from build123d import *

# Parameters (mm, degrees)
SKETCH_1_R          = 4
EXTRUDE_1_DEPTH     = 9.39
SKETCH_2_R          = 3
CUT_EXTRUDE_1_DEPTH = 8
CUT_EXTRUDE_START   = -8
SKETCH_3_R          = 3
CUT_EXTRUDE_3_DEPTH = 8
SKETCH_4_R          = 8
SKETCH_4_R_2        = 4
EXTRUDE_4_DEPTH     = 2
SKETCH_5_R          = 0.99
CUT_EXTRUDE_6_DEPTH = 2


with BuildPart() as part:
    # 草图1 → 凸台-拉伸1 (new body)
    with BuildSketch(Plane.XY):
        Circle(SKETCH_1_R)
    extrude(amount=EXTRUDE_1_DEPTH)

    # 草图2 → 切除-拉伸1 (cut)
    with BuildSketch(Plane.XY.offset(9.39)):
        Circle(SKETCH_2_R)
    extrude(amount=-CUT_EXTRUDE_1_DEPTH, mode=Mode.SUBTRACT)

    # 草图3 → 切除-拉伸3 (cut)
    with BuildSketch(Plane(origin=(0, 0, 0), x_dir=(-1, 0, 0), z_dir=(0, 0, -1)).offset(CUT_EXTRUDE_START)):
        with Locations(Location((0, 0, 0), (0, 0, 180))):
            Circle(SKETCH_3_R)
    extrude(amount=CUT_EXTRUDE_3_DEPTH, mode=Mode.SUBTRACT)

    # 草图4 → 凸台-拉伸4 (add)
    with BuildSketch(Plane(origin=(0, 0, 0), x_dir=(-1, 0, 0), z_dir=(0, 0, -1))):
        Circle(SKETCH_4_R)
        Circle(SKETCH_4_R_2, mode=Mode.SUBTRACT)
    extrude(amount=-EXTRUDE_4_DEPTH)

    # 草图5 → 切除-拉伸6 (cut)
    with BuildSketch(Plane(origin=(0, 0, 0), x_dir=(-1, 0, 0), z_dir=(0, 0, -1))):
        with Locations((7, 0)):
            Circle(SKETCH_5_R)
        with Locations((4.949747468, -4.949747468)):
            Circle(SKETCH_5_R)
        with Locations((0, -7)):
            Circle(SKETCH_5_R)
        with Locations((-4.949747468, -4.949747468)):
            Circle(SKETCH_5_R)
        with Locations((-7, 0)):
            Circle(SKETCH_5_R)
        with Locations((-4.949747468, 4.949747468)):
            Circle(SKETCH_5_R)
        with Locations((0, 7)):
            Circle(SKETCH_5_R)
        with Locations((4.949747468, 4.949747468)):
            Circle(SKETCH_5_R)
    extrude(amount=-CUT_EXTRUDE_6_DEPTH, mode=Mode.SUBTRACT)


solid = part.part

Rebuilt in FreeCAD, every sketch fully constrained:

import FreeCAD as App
import Part
import Sketcher
from FreeCAD import Vector

doc = App.newDocument("Part")
body = doc.addObject("PartDesign::Body", "Body")

sketch1 = body.newObject("Sketcher::SketchObject", "Sketch")
sketch1.AttachmentSupport = (doc.getObject("XY_Plane"), [""])
sketch1.MapMode = "FlatFace"
sketch1.addGeometry(Part.Circle(Vector(0, 0, 0), Vector(0, 0, 1), 4), False)
sketch1.addConstraint([
    Sketcher.Constraint("Coincident", 0, 3, -1, 1),
    Sketcher.Constraint("Diameter", 0, 8.0),
])
pad1 = body.newObject("PartDesign::Pad", "Pad")
pad1.Profile = sketch1
pad1.Length = 9.39

sketch2 = body.newObject("Sketcher::SketchObject", "Sketch001")
sketch2.AttachmentSupport = (doc.getObject("XY_Plane"), [""])
sketch2.MapMode = "FlatFace"
sketch2.AttachmentOffset = App.Placement(Vector(0, 0, 9.39), App.Rotation())
sketch2.addGeometry(Part.Circle(Vector(0, 0, 0), Vector(0, 0, 1), 3), False)
sketch2.addConstraint([
    Sketcher.Constraint("Coincident", 0, 3, -1, 1),
    Sketcher.Constraint("Diameter", 0, 6.0),
])
pocket1 = body.newObject("PartDesign::Pocket", "Pocket")
pocket1.Profile = sketch2
pocket1.Length = 8

sketch3 = body.newObject("Sketcher::SketchObject", "Sketch002")
sketch3.AttachmentSupport = (doc.getObject("XY_Plane"), [""])
sketch3.MapMode = "FlatFace"
sketch3.AttachmentOffset = App.Placement(Vector(0, 0, 8), App.Rotation())
sketch3.addGeometry(Part.Circle(Vector(0, 0, 0), Vector(0, 0, 1), 3), False)
sketch3.addConstraint([
    Sketcher.Constraint("Coincident", 0, 3, -1, 1),
    Sketcher.Constraint("Diameter", 0, 6.0),
])
pocket2 = body.newObject("PartDesign::Pocket", "Pocket001")
pocket2.Profile = sketch3
pocket2.Length = 8

sketch4 = body.newObject("Sketcher::SketchObject", "Sketch003")
sketch4.AttachmentSupport = (doc.getObject("XY_Plane"), [""])
sketch4.MapMode = "FlatFace"
sketch4.addGeometry([
    Part.Circle(Vector(0, 0, 0), Vector(0, 0, 1), 8),
    Part.Circle(Vector(0, 0, 0), Vector(0, 0, 1), 4),
], False)
sketch4.addConstraint([
    Sketcher.Constraint("Coincident", 0, 3, -1, 1),
    Sketcher.Constraint("Coincident", 1, 3, -1, 1),
    Sketcher.Constraint("Diameter", 0, 16.0),
    Sketcher.Constraint("Diameter", 1, 8.0),
])
pad2 = body.newObject("PartDesign::Pad", "Pad001")
pad2.Profile = sketch4
pad2.Length = 2

sketch5 = body.newObject("Sketcher::SketchObject", "Sketch004")
sketch5.AttachmentSupport = (doc.getObject("XY_Plane"), [""])
sketch5.MapMode = "FlatFace"
sketch5.addGeometry([
    Part.Circle(Vector(-7, 0, 0), Vector(0, 0, 1), 1),
    Part.Circle(Vector(-4.9, -4.9, 0), Vector(0, 0, 1), 1),
    Part.Circle(Vector(0, -7, 0), Vector(0, 0, 1), 1),
    Part.Circle(Vector(4.9, -4.9, 0), Vector(0, 0, 1), 1),
    Part.Circle(Vector(7, 0, 0), Vector(0, 0, 1), 1),
    Part.Circle(Vector(4.9, 4.9, 0), Vector(0, 0, 1), 1),
    Part.Circle(Vector(0, 7, 0), Vector(0, 0, 1), 1),
    Part.Circle(Vector(-4.9, 4.9, 0), Vector(0, 0, 1), 1),
], False)
sketch5.addConstraint([
    Sketcher.Constraint("Equal", 0, 1),
    Sketcher.Constraint("Equal", 1, 2),
    Sketcher.Constraint("Equal", 2, 3),
    Sketcher.Constraint("Equal", 3, 4),
    Sketcher.Constraint("Equal", 4, 5),
    Sketcher.Constraint("Equal", 5, 6),
    Sketcher.Constraint("Equal", 6, 7),
    Sketcher.Constraint("Symmetric", 0, 3, 4, 3, -1, 1),
    Sketcher.Constraint("Symmetric", 1, 3, 5, 3, -1, 1),
    Sketcher.Constraint("Symmetric", 2, 3, 6, 3, -1, 1),
    Sketcher.Constraint("Symmetric", 3, 3, 7, 3, -1, 1),
    Sketcher.Constraint("Symmetric", 1, 3, 3, 3, -2),
    Sketcher.Constraint("PointOnObject", 0, 3, -1),
    Sketcher.Constraint("PointOnObject", 2, 3, -2),
    Sketcher.Constraint("Diameter", 0, 1.98),
    Sketcher.Constraint("DistanceX", 0, 3, -1, 1, 7.0),
    Sketcher.Constraint("DistanceY", 2, 3, -1, 1, 7.0),
    Sketcher.Constraint("DistanceX", 1, 3, -1, 1, 4.949747),
    Sketcher.Constraint("DistanceY", 1, 3, -1, 1, 4.949747),
])
pocket3 = body.newObject("PartDesign::Pocket", "Pocket002")
pocket3.Profile = sketch5
pocket3.Length = 2
pocket3.Reversed = True

doc.recompute()
